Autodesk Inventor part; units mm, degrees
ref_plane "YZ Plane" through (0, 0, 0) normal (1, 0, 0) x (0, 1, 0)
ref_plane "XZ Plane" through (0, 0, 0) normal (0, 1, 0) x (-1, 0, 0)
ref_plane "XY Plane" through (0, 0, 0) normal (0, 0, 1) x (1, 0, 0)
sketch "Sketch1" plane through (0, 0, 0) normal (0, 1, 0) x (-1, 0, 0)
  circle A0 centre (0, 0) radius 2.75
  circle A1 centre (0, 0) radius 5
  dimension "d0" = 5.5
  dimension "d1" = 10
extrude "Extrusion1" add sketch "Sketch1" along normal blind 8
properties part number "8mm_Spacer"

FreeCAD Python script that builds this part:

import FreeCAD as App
import Part
import Sketcher

doc = App.newDocument("Part")
params = doc.addObject("Spreadsheet::Sheet", "Params")
for row, (alias, value) in enumerate([
    ("sketch1_diameter", "10 mm"),
    ("sketch1_diameter2", "5.5 mm"),
    ("pad1_length", "8 mm"),
], start=1):
    params.set(f"A{row}", alias)
    params.set(f"B{row}", "=" + value)
    params.setAlias(f"B{row}", alias)

body = doc.addObject("PartDesign::Body", "Body")

sketch1 = body.newObject("Sketcher::SketchObject", "Sketch")
sketch1.AttachmentSupport = (doc.getObject("XZ_Plane"), [""])
sketch1.MapMode = "FlatFace"
sketch1.addGeometry([
    Part.Circle(App.Vector(0, 0, 0), App.Vector(0, 0, 1), 5),
    Part.Circle(App.Vector(0, 0, 0), App.Vector(0, 0, 1), 2.8),
], False)
sketch1.addConstraint([
    Sketcher.Constraint("Coincident", 0, 3, -1, 1),
    Sketcher.Constraint("Coincident", 1, 3, -1, 1),
    Sketcher.Constraint("Diameter", 0, 10.0),
    Sketcher.Constraint("Diameter", 1, 5.5),
])
sketch1.setExpression("Constraints[2]", "Params.sketch1_diameter")
sketch1.setExpression("Constraints[3]", "Params.sketch1_diameter2")
pad1 = body.newObject("PartDesign::Pad", "Pad")
pad1.Profile = sketch1
pad1.setExpression("Length", "Params.pad1_length")
pad1.Reversed = True

doc.recompute()
